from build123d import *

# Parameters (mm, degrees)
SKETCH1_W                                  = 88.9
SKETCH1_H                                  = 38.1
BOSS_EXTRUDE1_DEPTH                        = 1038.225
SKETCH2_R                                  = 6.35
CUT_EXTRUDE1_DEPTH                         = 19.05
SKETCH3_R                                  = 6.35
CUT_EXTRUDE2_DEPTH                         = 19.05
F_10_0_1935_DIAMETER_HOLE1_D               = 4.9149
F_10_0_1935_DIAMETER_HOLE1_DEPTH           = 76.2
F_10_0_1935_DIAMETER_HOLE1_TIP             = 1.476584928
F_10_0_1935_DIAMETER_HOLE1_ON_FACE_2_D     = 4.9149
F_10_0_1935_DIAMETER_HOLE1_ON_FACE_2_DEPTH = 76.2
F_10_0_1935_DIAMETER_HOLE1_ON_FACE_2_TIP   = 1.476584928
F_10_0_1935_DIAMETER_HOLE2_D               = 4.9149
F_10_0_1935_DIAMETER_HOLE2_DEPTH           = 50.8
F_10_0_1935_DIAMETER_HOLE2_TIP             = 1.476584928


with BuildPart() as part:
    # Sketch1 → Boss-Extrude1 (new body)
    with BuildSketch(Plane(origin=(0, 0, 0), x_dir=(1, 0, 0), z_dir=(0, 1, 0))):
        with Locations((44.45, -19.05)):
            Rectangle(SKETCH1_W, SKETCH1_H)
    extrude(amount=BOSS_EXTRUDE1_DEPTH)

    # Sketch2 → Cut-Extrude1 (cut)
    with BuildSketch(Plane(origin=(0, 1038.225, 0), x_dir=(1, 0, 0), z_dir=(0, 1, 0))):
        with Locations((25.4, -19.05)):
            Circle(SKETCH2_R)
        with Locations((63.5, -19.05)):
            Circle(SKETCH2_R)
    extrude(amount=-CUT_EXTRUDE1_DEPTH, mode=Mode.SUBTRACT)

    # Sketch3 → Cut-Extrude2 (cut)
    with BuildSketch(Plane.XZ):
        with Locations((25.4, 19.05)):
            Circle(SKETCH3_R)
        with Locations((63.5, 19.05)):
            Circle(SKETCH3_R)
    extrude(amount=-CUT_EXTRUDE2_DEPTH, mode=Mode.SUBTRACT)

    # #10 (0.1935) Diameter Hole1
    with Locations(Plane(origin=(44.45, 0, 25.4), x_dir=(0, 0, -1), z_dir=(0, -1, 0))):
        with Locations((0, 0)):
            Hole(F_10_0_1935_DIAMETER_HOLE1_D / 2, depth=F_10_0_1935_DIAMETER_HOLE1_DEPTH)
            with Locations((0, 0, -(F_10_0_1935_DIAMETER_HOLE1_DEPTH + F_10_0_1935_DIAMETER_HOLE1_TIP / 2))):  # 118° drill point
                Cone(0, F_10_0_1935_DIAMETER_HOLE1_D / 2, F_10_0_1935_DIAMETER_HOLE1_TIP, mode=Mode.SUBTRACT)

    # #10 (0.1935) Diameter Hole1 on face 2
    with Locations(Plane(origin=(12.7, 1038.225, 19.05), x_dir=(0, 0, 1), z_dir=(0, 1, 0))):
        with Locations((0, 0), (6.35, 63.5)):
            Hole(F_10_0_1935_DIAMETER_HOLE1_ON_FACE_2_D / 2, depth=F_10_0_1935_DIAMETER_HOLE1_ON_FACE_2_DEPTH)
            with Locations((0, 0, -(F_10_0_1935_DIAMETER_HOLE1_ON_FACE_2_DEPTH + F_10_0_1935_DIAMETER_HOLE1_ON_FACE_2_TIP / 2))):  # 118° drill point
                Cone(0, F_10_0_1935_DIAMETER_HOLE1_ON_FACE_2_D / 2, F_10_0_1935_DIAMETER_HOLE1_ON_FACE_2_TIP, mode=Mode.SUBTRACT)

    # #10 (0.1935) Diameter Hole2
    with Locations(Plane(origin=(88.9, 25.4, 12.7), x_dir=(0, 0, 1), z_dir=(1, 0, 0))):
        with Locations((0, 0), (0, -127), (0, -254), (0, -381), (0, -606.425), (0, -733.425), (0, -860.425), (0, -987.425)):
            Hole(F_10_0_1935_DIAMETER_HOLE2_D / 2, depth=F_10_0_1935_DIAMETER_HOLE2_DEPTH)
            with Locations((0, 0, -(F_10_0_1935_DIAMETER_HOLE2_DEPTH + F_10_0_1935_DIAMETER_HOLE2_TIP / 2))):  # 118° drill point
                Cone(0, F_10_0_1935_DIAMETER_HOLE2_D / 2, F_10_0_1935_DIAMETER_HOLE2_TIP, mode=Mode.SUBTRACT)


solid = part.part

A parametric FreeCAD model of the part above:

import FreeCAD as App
import Part
import Sketcher
from FreeCAD import Vector
Q = App.Units.Quantity


def add_polygon(sketch, points):
    """Adds a closed chain of lines whose ends are joined by coincident constraints."""
    first, n = sketch.GeometryCount, len(points)
    for a, b in zip(points, points[1:] + points[:1]):
        sketch.addGeometry(Part.LineSegment(App.Vector(*a, 0), App.Vector(*b, 0)), False)
    for i in range(n):
        sketch.addConstraint(Sketcher.Constraint("Coincident", first + i, 2, first + (i + 1) % n, 1))

doc = App.newDocument("Part")
params = doc.addObject("Spreadsheet::Sheet", "Params")
for row, (alias, value) in enumerate([
    ("sketch1_width", "3.5 in"),
    ("sketch1_height", "1.5 in"),
    ("pad1_length", "40.875 in"),
    ("sketch2_diameter", "0.5 in"),
    ("pocket1_length", "0.75 in"),
    ("sketch3_diameter", "0.5 in"),
    ("pocket2_length", "0.75 in"),
    ("hole_diameter", "0.1935 in"),
    ("hole_depth", "3 in"),
    ("hole2_diameter", "0.1935 in"),
    ("hole2_depth", "3 in"),
    ("hole3_diameter", "0.1935 in"),
    ("hole3_depth", "2 in"),
], start=1):
    params.set(f"A{row}", alias)
    params.set(f"B{row}", "=" + value)
    params.setAlias(f"B{row}", alias)

body = doc.addObject("PartDesign::Body", "Body")

# Sketch on XZ plane
sketch1 = doc.addObject("Sketcher::SketchObject", "Sketch")
body.addObject(sketch1)
sketch1.AttachmentSupport = (doc.XZ_Plane, [""])
sketch1.MapMode = "FlatFace"
add_polygon(sketch1, [(0, 0), (0, 38.1), (88.9, 38.1), (88.9, 0)])  # lines 0-3
sketch1.addConstraint([
    Sketcher.Constraint("Vertical", 0),
    Sketcher.Constraint("Horizontal", 1),
    Sketcher.Constraint("Vertical", 2),
    Sketcher.Constraint("Horizontal", 3),
    Sketcher.Constraint("Coincident", 3, 2, -1, 1),
    Sketcher.Constraint("DistanceX", 1, 1, 1, 2, Q("3.5 in")),
    Sketcher.Constraint("DistanceY", 0, 1, 0, 2, Q("1.5 in")),
])
sketch1.setExpression("Constraints[9]", "Params.sketch1_width")
sketch1.setExpression("Constraints[10]", "Params.sketch1_height")
pad1 = doc.addObject("PartDesign::Pad", "Pad")
body.addObject(pad1)
pad1.Profile = sketch1
pad1.setExpression("Length", "Params.pad1_length")
pad1.Reversed = True

# Sketch on XZ plane
sketch2 = doc.addObject("Sketcher::SketchObject", "Sketch001")
body.addObject(sketch2)
sketch2.AttachmentSupport = (doc.XZ_Plane, [""])
sketch2.MapMode = "FlatFace"
sketch2.AttachmentOffset = App.Placement(Vector(0, 0, -40.875 * 25.4), App.Rotation())
sketch2.addGeometry([
    Part.Circle(Vector(25.4, 19.05, 0), Vector(0, 0, 1), 6.35),
    Part.Circle(Vector(63.5, 19.05, 0), Vector(0, 0, 1), 6.35),
], False)
sketch2.addConstraint([
    Sketcher.Constraint("Equal", 0, 1),
    Sketcher.Constraint("Horizontal", 0, 3, 1, 3),
    Sketcher.Constraint("Diameter", 0, Q("0.5 in")),
    Sketcher.Constraint("DistanceX", -1, 1, 0, 3, Q("1 in")),
    Sketcher.Constraint("DistanceX", -1, 1, 1, 3, Q("2.5 in")),
    Sketcher.Constraint("DistanceY", -1, 1, 0, 3, Q("0.75 in")),
])
sketch2.setExpression("Constraints[2]", "Params.sketch2_diameter")
pocket1 = doc.addObject("PartDesign::Pocket", "Pocket")
body.addObject(pocket1)
pocket1.Profile = sketch2
pocket1.setExpression("Length", "Params.pocket1_length")
pocket1.Reversed = True

# Sketch on XZ plane
sketch3 = doc.addObject("Sketcher::SketchObject", "Sketch002")
body.addObject(sketch3)
sketch3.AttachmentSupport = (doc.XZ_Plane, [""])
sketch3.MapMode = "FlatFace"
sketch3.addGeometry([
    Part.Circle(Vector(25.4, 19.05, 0), Vector(0, 0, 1), 6.35),
    Part.Circle(Vector(63.5, 19.05, 0), Vector(0, 0, 1), 6.35),
], False)
sketch3.addConstraint([
    Sketcher.Constraint("Equal", 0, 1),
    Sketcher.Constraint("Horizontal", 0, 3, 1, 3),
    Sketcher.Constraint("Diameter", 0, Q("0.5 in")),
    Sketcher.Constraint("DistanceX", -1, 1, 0, 3, Q("1 in")),
    Sketcher.Constraint("DistanceX", -1, 1, 1, 3, Q("2.5 in")),
    Sketcher.Constraint("DistanceY", -1, 1, 0, 3, Q("0.75 in")),
])
sketch3.setExpression("Constraints[2]", "Params.sketch3_diameter")
pocket2 = doc.addObject("PartDesign::Pocket", "Pocket001")
body.addObject(pocket2)
pocket2.Profile = sketch3
pocket2.setExpression("Length", "Params.pocket2_length")

# Sketch on XZ plane
sketch4 = doc.addObject("Sketcher::SketchObject", "Sketch003")
body.addObject(sketch4)
sketch4.AttachmentSupport = (doc.XZ_Plane, [""])
sketch4.MapMode = "FlatFace"
sketch4.addGeometry(Part.Circle(Vector(44.45, 25.4, 0), Vector(0, 0, 1), 2.45745), False)
sketch4.addConstraint([
    Sketcher.Constraint("DistanceY", -1, 1, 0, 3, Q("1 in")),
    Sketcher.Constraint("Diameter", 0, Q("0.1935 in")),
    Sketcher.Constraint("DistanceX", -1, 1, 0, 3, Q("1.75 in")),
])
doc.recompute()
hole = doc.addObject("PartDesign::Hole", "Hole")
body.addObject(hole)
hole.Profile = sketch4
hole.ThreadType = "None"
hole.setExpression("Diameter", "Params.hole_diameter")
hole.DepthType = "Dimension"
hole.setExpression("Depth", "Params.hole_depth")
hole.DrillPoint = "Angled"
hole.DrillPointAngle = 118

# Sketch on XZ plane
sketch5 = doc.addObject("Sketcher::SketchObject", "Sketch004")
body.addObject(sketch5)
sketch5.AttachmentSupport = (doc.XZ_Plane, [""])
sketch5.MapMode = "FlatFace"
sketch5.AttachmentOffset = App.Placement(Vector(0, 0, -40.875 * 25.4), App.Rotation())
sketch5.addGeometry([
    Part.Circle(Vector(12.7, 19.05, 0), Vector(0, 0, 1), 2.45745),
    Part.Circle(Vector(76.2, 25.4, 0), Vector(0, 0, 1), 2.45745),
], False)
sketch5.addConstraint([
    Sketcher.Constraint("Equal", 0, 1),
    Sketcher.Constraint("DistanceX", -1, 1, 1, 3, Q("3 in")),
    Sketcher.Constraint("DistanceY", -1, 1, 1, 3, Q("1 in")),
    Sketcher.Constraint("Diameter", 0, Q("0.1935 in")),
    Sketcher.Constraint("DistanceX", -1, 1, 0, 3, Q("0.5 in")),
    Sketcher.Constraint("DistanceY", -1, 1, 0, 3, Q("0.75 in")),
])
doc.recompute()
hole2 = doc.addObject("PartDesign::Hole", "Hole001")
body.addObject(hole2)
hole2.Profile = sketch5
hole2.ThreadType = "None"
hole2.setExpression("Diameter", "Params.hole2_diameter")
hole2.DepthType = "Dimension"
hole2.setExpression("Depth", "Params.hole2_depth")
hole2.DrillPoint = "Angled"
hole2.DrillPointAngle = 118
hole2.Reversed = True

# Sketch on YZ plane
sketch6 = doc.addObject("Sketcher::SketchObject", "Sketch005")
body.addObject(sketch6)
sketch6.AttachmentSupport = (doc.YZ_Plane, [""])
sketch6.MapMode = "FlatFace"
sketch6.AttachmentOffset = App.Placement(Vector(0, 0, 3.5 * 25.4), App.Rotation())
sketch6.addGeometry([
    Part.Circle(Vector(25.4, 12.7, 0), Vector(0, 0, 1), 2.45745),  # 0
    Part.Circle(Vector(152.4, 12.7, 0), Vector(0, 0, 1), 2.45745),  # 1
    Part.Circle(Vector(279.4, 12.7, 0), Vector(0, 0, 1), 2.45745),  # 2
    Part.Circle(Vector(406.4, 12.7, 0), Vector(0, 0, 1), 2.45745),  # 3
    Part.Circle(Vector(631.825, 12.7, 0), Vector(0, 0, 1), 2.45745),  # 4
    Part.Circle(Vector(758.825, 12.7, 0), Vector(0, 0, 1), 2.45745),  # 5
    Part.Circle(Vector(885.825, 12.7, 0), Vector(0, 0, 1), 2.45745),  # 6
    Part.Circle(Vector(1012.825, 12.7, 0), Vector(0, 0, 1), 2.45745),  # 7
], False)
sketch6.addConstraint([
    Sketcher.Constraint("Equal", 0, 1),
    Sketcher.Constraint("Equal", 1, 2),
    Sketcher.Constraint("Equal", 2, 3),
    Sketcher.Constraint("Equal", 3, 4),
    Sketcher.Constraint("Equal", 4, 5),
    Sketcher.Constraint("Equal", 5, 6),
    Sketcher.Constraint("Equal", 6, 7),
    Sketcher.Constraint("Horizontal", 0, 3, 1, 3),
    Sketcher.Constraint("Horizontal", 1, 3, 2, 3),
    Sketcher.Constraint("Horizontal", 2, 3, 3, 3),
    Sketcher.Constraint("Horizontal", 3, 3, 4, 3),
    Sketcher.Constraint("Horizontal", 4, 3, 5, 3),
    Sketcher.Constraint("Horizontal", 5, 3, 6, 3),
    Sketcher.Constraint("Horizontal", 6, 3, 7, 3),
    Sketcher.Constraint("DistanceX", -1, 1, 0, 3, Q("1 in")),
    Sketcher.Constraint("DistanceX", -1, 1, 1, 3, Q("6 in")),
    Sketcher.Constraint("DistanceX", -1, 1, 2, 3, Q("11 in")),
    Sketcher.Constraint("DistanceX", -1, 1, 3, 3, Q("16 in")),
    Sketcher.Constraint("DistanceX", 4, 3, 5, 3, Q("5 in")),
    Sketcher.Constraint("DistanceX", 5, 3, 6, 3, Q("5 in")),
    Sketcher.Constraint("DistanceX", 6, 3, 7, 3, Q("5 in")),
    Sketcher.Constraint("Diameter", 0, Q("0.1935 in")),
    Sketcher.Constraint("DistanceY", -1, 1, 0, 3, Q("0.5 in")),
    Sketcher.Constraint("DistanceX", -1, 1, 4, 3, Q("24.875 in")),
])
doc.recompute()
hole3 = doc.addObject("PartDesign::Hole", "Hole002")
body.addObject(hole3)
hole3.Profile = sketch6
hole3.ThreadType = "None"
hole3.setExpression("Diameter", "Params.hole3_diameter")
hole3.DepthType = "Dimension"
hole3.setExpression("Depth", "Params.hole3_depth")
hole3.DrillPoint = "Angled"
hole3.DrillPointAngle = 118

doc.recompute()
